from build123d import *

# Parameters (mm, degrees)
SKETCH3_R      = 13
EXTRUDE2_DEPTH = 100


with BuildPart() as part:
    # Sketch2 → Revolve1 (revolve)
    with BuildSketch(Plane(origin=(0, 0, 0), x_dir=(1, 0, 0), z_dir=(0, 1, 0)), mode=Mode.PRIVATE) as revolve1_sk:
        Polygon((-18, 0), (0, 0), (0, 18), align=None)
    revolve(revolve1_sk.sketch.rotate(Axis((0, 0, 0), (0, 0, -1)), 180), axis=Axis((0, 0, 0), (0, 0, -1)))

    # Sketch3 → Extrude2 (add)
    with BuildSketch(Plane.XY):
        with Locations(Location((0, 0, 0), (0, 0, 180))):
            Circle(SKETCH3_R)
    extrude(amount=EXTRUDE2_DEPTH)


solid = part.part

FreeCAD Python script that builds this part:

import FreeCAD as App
import Part
import Sketcher

V = App.Vector
Q = App.Units.Quantity


def add_polygon(sketch, points):
    """Adds a closed chain of lines whose ends are joined by coincident constraints."""
    first, n = sketch.GeometryCount, len(points)
    for a, b in zip(points, points[1:] + points[:1]):
        sketch.addGeometry(Part.LineSegment(App.Vector(*a, 0), App.Vector(*b, 0)), False)
    for i in range(n):
        sketch.addConstraint(Sketcher.Constraint("Coincident", first + i, 2, first + (i + 1) % n, 1))

doc = App.newDocument("Part")
body = doc.addObject("PartDesign::Body", "Body")

sketch1 = body.newObject("Sketcher::SketchObject", "Sketch")
sketch1.AttachmentSupport = (doc.getObject("XZ_Plane"), [""])
sketch1.MapMode = "FlatFace"
add_polygon(sketch1, [(-18, 0), (0, 0), (0, -18)])
sketch1.addConstraint([
    Sketcher.Constraint("Horizontal", 0),
    Sketcher.Constraint("Vertical", 1),
    Sketcher.Constraint("Coincident", 0, 2, -1, 1),
    Sketcher.Constraint("Equal", 0, 1),
    Sketcher.Constraint("DistanceX", 0, 1, 0, 2, Q("18 mm")),
])
revolution = body.newObject("PartDesign::Revolution", "Revolution")
revolution.Profile = sketch1
revolution.ReferenceAxis = (sketch1, ["V_Axis"])
revolution.Angle = 360

sketch2 = body.newObject("Sketcher::SketchObject", "Sketch001")
sketch2.AttachmentSupport = (doc.getObject("XY_Plane"), [""])
sketch2.MapMode = "FlatFace"
sketch2.addGeometry(Part.Circle(V(0, 0, 0), V(0, 0, 1), 13), False)
sketch2.addConstraint([
    Sketcher.Constraint("Coincident", 0, 3, -1, 1),
    Sketcher.Constraint("Diameter", 0, Q("26 mm")),
])
pad1 = body.newObject("PartDesign::Pad", "Pad")
pad1.Profile = sketch2
pad1.Length = 100

doc.recompute()
